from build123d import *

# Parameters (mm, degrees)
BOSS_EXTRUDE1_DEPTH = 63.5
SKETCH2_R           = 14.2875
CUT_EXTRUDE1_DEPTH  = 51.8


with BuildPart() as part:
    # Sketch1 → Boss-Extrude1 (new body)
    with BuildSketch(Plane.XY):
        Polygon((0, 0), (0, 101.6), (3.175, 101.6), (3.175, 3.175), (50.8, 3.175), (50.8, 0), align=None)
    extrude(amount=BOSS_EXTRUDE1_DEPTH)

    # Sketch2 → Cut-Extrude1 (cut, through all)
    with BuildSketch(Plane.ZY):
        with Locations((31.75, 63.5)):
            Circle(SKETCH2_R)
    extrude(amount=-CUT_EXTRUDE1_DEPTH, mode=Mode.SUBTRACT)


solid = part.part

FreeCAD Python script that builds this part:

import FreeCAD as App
import Part
import Sketcher
from FreeCAD import Vector
Q = App.Units.Quantity


def add_polygon(sketch, points):
    """Adds a closed chain of lines whose ends are joined by coincident constraints."""
    first, n = sketch.GeometryCount, len(points)
    for a, b in zip(points, points[1:] + points[:1]):
        sketch.addGeometry(Part.LineSegment(App.Vector(*a, 0), App.Vector(*b, 0)), False)
    for i in range(n):
        sketch.addConstraint(Sketcher.Constraint("Coincident", first + i, 2, first + (i + 1) % n, 1))

doc = App.newDocument("Part")
body = doc.addObject("PartDesign::Body", "Body")

# Sketch on XY plane
sketch1 = body.newObject("Sketcher::SketchObject", "Sketch")
sketch1.AttachmentSupport = (doc.getObject("XY_Plane"), [""])
sketch1.MapMode = "FlatFace"
add_polygon(sketch1, [(0, 101.6), (0, 0), (50.8, 0), (50.8, 3.2), (3.2, 3.2), (3.2, 101.6)])  # lines 0-5
sketch1.addConstraint([
    Sketcher.Constraint("Vertical", 0),
    Sketcher.Constraint("Horizontal", 1),
    Sketcher.Constraint("Vertical", 2),
    Sketcher.Constraint("Horizontal", 3),
    Sketcher.Constraint("Vertical", 4),
    Sketcher.Constraint("Horizontal", 5),
    Sketcher.Constraint("Coincident", 0, 2, -1, 1),
    Sketcher.Constraint("Equal", 5, 2),
    Sketcher.Constraint("DistanceX", 1, 1, 1, 2, Q("2 in")),
    Sketcher.Constraint("DistanceY", 0, 2, 0, 1, Q("4 in")),
    Sketcher.Constraint("DistanceX", 3, 2, 3, 1, Q("1.875 in")),
])
pad1 = body.newObject("PartDesign::Pad", "Pad")
pad1.Profile = sketch1
pad1.Length = Q("2.5 in")

# Sketch on YZ plane
sketch2 = body.newObject("Sketcher::SketchObject", "Sketch001")
sketch2.AttachmentSupport = (doc.getObject("YZ_Plane"), [""])
sketch2.MapMode = "FlatFace"
sketch2.addGeometry(Part.Circle(Vector(64, 32, 0), Vector(0, 0, 1), 14), False)
sketch2.addConstraint([
    Sketcher.Constraint("Diameter", 0, Q("1.125 in")),
    Sketcher.Constraint("DistanceX", -1, 1, 0, 3, Q("2.5 in")),
    Sketcher.Constraint("DistanceY", -1, 1, 0, 3, Q("1.25 in")),
])
pocket1 = body.newObject("PartDesign::Pocket", "Pocket")
pocket1.Profile = sketch2
pocket1.Type = "ThroughAll"
pocket1.Reversed = True

doc.recompute()
